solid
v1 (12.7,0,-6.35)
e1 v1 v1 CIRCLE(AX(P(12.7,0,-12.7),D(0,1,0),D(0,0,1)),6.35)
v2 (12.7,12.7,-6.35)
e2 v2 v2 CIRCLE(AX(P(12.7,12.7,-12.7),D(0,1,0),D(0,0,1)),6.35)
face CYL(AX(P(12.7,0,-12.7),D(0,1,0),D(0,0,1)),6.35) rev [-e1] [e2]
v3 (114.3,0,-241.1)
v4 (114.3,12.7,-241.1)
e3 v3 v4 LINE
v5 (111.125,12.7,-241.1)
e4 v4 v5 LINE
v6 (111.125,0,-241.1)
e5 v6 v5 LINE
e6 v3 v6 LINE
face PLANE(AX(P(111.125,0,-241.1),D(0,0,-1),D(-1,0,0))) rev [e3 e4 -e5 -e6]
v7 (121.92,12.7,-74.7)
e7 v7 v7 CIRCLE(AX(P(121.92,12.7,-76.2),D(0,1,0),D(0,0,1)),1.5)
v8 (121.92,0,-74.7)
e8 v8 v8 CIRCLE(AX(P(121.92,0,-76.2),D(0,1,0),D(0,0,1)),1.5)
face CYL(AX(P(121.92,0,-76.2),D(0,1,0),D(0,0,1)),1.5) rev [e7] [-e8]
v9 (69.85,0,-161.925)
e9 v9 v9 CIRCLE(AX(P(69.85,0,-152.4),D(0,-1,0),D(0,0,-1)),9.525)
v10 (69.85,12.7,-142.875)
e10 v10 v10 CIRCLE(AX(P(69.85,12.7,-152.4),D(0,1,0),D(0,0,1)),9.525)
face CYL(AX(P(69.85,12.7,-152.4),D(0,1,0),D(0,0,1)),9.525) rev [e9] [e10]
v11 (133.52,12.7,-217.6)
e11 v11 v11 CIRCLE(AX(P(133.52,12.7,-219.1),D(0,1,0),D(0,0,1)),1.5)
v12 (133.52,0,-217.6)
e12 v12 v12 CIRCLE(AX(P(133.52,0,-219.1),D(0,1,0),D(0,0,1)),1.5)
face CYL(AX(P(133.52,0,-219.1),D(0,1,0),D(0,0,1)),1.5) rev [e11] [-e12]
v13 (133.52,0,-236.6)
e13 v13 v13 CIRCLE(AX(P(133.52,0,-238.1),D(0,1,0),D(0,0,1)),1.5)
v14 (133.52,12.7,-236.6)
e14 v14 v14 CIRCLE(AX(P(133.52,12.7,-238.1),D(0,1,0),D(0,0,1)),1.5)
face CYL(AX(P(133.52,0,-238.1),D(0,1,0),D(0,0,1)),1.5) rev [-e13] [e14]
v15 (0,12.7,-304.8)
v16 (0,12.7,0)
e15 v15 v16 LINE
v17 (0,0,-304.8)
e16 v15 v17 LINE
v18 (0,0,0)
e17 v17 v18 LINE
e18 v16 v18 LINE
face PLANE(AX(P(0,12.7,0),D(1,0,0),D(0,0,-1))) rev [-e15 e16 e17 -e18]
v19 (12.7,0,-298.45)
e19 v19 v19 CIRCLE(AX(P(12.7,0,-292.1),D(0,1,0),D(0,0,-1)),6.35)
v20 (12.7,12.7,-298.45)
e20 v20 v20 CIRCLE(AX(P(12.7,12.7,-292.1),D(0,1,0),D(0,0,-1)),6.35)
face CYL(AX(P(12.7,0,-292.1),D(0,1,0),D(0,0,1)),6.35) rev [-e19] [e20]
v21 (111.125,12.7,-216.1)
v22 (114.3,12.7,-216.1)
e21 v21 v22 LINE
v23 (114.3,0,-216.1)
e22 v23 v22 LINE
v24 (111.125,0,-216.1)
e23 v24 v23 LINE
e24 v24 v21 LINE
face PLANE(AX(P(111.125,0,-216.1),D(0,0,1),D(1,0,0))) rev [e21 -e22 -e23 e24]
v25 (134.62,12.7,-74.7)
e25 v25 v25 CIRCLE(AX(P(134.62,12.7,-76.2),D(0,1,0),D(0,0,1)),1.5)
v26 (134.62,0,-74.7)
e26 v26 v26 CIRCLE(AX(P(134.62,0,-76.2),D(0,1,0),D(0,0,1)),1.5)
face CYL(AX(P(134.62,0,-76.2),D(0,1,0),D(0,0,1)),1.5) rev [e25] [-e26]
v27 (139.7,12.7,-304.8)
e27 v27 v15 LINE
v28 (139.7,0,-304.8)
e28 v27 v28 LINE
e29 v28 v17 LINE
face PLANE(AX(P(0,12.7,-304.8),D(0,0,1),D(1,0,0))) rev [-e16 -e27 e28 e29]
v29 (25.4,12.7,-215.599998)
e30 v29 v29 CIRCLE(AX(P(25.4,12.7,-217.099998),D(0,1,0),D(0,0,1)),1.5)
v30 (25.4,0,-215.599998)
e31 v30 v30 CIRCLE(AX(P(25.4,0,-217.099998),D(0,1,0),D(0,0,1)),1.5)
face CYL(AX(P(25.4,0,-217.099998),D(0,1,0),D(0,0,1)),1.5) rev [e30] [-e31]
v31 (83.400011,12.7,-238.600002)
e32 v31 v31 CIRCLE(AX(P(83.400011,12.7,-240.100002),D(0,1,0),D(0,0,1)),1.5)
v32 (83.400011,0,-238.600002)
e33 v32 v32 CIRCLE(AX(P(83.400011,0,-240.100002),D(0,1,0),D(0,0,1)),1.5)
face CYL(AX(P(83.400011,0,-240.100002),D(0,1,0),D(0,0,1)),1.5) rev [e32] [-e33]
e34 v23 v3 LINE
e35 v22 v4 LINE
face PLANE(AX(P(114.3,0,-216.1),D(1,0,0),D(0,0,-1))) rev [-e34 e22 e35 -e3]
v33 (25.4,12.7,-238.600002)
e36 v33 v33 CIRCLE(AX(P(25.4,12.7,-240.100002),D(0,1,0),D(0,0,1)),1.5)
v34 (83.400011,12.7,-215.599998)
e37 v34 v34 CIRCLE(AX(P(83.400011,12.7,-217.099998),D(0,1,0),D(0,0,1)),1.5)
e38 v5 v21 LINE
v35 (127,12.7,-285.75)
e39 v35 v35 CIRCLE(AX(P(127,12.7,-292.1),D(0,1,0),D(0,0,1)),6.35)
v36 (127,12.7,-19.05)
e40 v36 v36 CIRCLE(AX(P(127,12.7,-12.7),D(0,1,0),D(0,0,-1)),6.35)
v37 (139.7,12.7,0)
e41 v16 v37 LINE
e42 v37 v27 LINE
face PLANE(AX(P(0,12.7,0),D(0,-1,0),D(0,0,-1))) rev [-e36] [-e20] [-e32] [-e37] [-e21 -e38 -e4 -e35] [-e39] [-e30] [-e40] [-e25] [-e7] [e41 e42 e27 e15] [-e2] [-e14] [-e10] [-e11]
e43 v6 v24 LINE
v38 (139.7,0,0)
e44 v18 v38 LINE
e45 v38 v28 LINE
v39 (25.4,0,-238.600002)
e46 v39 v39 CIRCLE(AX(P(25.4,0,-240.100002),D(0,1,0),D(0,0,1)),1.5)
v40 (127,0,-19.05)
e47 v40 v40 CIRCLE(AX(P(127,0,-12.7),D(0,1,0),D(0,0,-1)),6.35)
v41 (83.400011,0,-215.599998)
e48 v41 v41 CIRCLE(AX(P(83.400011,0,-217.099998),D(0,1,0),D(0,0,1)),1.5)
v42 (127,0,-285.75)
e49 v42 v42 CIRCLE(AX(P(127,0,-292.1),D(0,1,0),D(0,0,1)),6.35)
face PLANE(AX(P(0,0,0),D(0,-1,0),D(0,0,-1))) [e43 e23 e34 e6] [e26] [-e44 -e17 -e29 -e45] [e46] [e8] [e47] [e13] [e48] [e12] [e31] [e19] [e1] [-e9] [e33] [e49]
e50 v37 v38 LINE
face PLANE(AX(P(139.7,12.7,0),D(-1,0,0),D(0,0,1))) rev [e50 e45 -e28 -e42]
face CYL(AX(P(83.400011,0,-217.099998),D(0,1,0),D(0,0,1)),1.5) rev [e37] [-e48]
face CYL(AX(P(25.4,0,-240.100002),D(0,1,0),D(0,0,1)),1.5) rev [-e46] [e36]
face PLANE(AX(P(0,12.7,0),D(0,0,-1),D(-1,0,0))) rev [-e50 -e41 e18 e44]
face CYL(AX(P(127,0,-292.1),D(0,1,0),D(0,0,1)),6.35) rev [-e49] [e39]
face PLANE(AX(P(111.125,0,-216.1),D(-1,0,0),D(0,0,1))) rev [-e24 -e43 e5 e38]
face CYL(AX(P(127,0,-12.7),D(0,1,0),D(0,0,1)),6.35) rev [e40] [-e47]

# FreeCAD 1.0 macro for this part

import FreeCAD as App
import Part
import Sketcher
from FreeCAD import Vector
Q = App.Units.Quantity

doc = App.newDocument("Part")
body = doc.addObject("PartDesign::Body", "Body")

sketch1 = doc.addObject("Sketcher::SketchObject", "Sketch")
body.addObject(sketch1)
sketch1.AttachmentSupport = (doc.XZ_Plane, [""])
sketch1.MapMode = "FlatFace"
sketch1.addGeometry([
    Part.LineSegment(Vector(0, -304.8, 0), Vector(0, 0, 0)),
    Part.LineSegment(Vector(0, 0, 0), Vector(139.7, 0, 0)),
    Part.LineSegment(Vector(139.7, 0, 0), Vector(139.7, -304.8, 0)),
    Part.LineSegment(Vector(139.7, -304.8, 0), Vector(0, -304.8, 0)),
], False)
sketch1.addConstraint([
    Sketcher.Constraint("Coincident", 0, 2, 1, 1),
    Sketcher.Constraint("Coincident", 1, 2, 2, 1),
    Sketcher.Constraint("Coincident", 2, 2, 3, 1),
    Sketcher.Constraint("Coincident", 3, 2, 0, 1),
    Sketcher.Constraint("Vertical", 0),
    Sketcher.Constraint("Horizontal", 1),
    Sketcher.Constraint("Vertical", 2),
    Sketcher.Constraint("Horizontal", 3),
    Sketcher.Constraint("Coincident", 0, 2, -1, 1),
    Sketcher.Constraint("DistanceY", 0, 1, 0, 2, Q("12 in")),
    Sketcher.Constraint("DistanceX", 1, 1, 1, 2, Q("5.5 in")),
])
pad1 = doc.addObject("PartDesign::Pad", "Pad")
body.addObject(pad1)
pad1.Profile = sketch1
pad1.Length = Q("0.5 in")
pad1.Reversed = True

sketch2 = doc.addObject("Sketcher::SketchObject", "Sketch001")
body.addObject(sketch2)
sketch2.AttachmentSupport = (doc.XZ_Plane, [""])
sketch2.MapMode = "FlatFace"
sketch2.AttachmentOffset = App.Placement(Vector(0, 0, -0.5 * 25.4), App.Rotation())
sketch2.addGeometry([
    Part.Circle(Vector(12.7, -12.7, 0), Vector(0, 0, 1), 6.35),
    Part.Circle(Vector(127, -12.7, 0), Vector(0, 0, 1), 6.35),
    Part.Circle(Vector(127, -292.1, 0), Vector(0, 0, 1), 6.35),
    Part.Circle(Vector(12.7, -292.1, 0), Vector(0, 0, 1), 6.35),
], False)
sketch2.addConstraint([
    Sketcher.Constraint("Equal", 0, 1),
    Sketcher.Constraint("Equal", 1, 2),
    Sketcher.Constraint("Equal", 2, 3),
    Sketcher.Constraint("Horizontal", 0, 3, 1, 3),
    Sketcher.Constraint("Horizontal", 2, 3, 3, 3),
    Sketcher.Constraint("Vertical", 1, 3, 2, 3),
    Sketcher.Constraint("Vertical", 0, 3, 3, 3),
    Sketcher.Constraint("Diameter", 0, Q("0.5 in")),
    Sketcher.Constraint("DistanceX", -1, 1, 1, 3, Q("5 in")),
    Sketcher.Constraint("DistanceY", 2, 3, 1, 3, Q("11 in")),
    Sketcher.Constraint("DistanceX", -1, 1, 0, 3, Q("0.5 in")),
    Sketcher.Constraint("DistanceY", 0, 3, -1, 1, Q("0.5 in")),
])
pocket1 = doc.addObject("PartDesign::Pocket", "Pocket")
body.addObject(pocket1)
pocket1.Profile = sketch2
pocket1.Type = "ThroughAll"
pocket1.Reversed = True

sketch3 = doc.addObject("Sketcher::SketchObject", "Sketch002")
body.addObject(sketch3)
sketch3.AttachmentSupport = (doc.XZ_Plane, [""])
sketch3.MapMode = "FlatFace"
sketch3.AttachmentOffset = App.Placement(Vector(0, 0, -0.5 * 25.4), App.Rotation())
sketch3.addGeometry(Part.Circle(Vector(69.85, -152.4, 0), Vector(0, 0, 1), 9.525), False)
sketch3.addConstraint([
    Sketcher.Constraint("Diameter", 0, Q("0.75 in")),
    Sketcher.Constraint("DistanceY", 0, 3, -1, 1, Q("6 in")),
    Sketcher.Constraint("DistanceX", -1, 1, 0, 3, Q("2.75 in")),
])
doc.recompute()
hole = doc.addObject("PartDesign::Hole", "Hole")
body.addObject(hole)
hole.Profile = sketch3
hole.ThreadType = "None"
hole.Diameter = Q("0.75 in")
hole.DepthType = "Dimension"
hole.Depth = Q("1 in")
hole.DrillPoint = "Angled"
hole.DrillPointAngle = 118
hole.Reversed = True

sketch4 = doc.addObject("Sketcher::SketchObject", "Sketch003")
body.addObject(sketch4)
sketch4.AttachmentSupport = (doc.XZ_Plane, [""])
sketch4.MapMode = "FlatFace"
sketch4.AttachmentOffset = App.Placement(Vector(0, 0, -0.5 * 25.4), App.Rotation())
sketch4.addGeometry([
    Part.Circle(Vector(25.4, -217.099998, 0), Vector(0, 0, 1), 1.5),
    Part.Circle(Vector(25.4, -240.100002, 0), Vector(0, 0, 1), 1.5),
    Part.Circle(Vector(83.400011, -240.100002, 0), Vector(0, 0, 1), 1.5),
    Part.Circle(Vector(83.400011, -217.099998, 0), Vector(0, 0, 1), 1.5),
], False)
sketch4.addConstraint([
    Sketcher.Constraint("Equal", 0, 1),
    Sketcher.Constraint("Equal", 1, 2),
    Sketcher.Constraint("Equal", 2, 3),
    Sketcher.Constraint("Horizontal", 1, 3, 2, 3),
    Sketcher.Constraint("Horizontal", 0, 3, 3, 3),
    Sketcher.Constraint("Vertical", 0, 3, 1, 3),
    Sketcher.Constraint("Vertical", 2, 3, 3, 3),
    Sketcher.Constraint("DistanceX", -1, 1, 0, 3, Q("1 in")),
    Sketcher.Constraint("Diameter", 0, Q("3 mm")),
    Sketcher.Constraint("DistanceX", -1, 1, 2, 3, Q("83.400011 mm")),
    Sketcher.Constraint("DistanceY", 0, 3, -1, 1, Q("217.099998 mm")),
    Sketcher.Constraint("DistanceY", 1, 3, -1, 1, Q("240.100002 mm")),
])
pocket2 = doc.addObject("PartDesign::Pocket", "Pocket001")
body.addObject(pocket2)
pocket2.Profile = sketch4
pocket2.Type = "ThroughAll"
pocket2.Reversed = True

sketch5 = doc.addObject("Sketcher::SketchObject", "Sketch004")
body.addObject(sketch5)
sketch5.AttachmentSupport = (doc.XZ_Plane, [""])
sketch5.MapMode = "FlatFace"
sketch5.AttachmentOffset = App.Placement(Vector(0, 0, -0.5 * 25.4), App.Rotation())
sketch5.addGeometry([
    Part.Circle(Vector(134.62, -76.2, 0), Vector(0, 0, 1), 1.5),
    Part.Circle(Vector(121.92, -76.2, 0), Vector(0, 0, 1), 1.5),
], False)
sketch5.addConstraint([
    Sketcher.Constraint("Equal", 0, 1),
    Sketcher.Constraint("Horizontal", 0, 3, 1, 3),
    Sketcher.Constraint("DistanceY", 0, 3, -1, 1, Q("3 in")),
    Sketcher.Constraint("DistanceX", -1, 1, 0, 3, Q("5.3 in")),
    Sketcher.Constraint("DistanceX", -1, 1, 1, 3, Q("4.8 in")),
    Sketcher.Constraint("Diameter", 0, Q("3 mm")),
])
pocket3 = doc.addObject("PartDesign::Pocket", "Pocket002")
body.addObject(pocket3)
pocket3.Profile = sketch5
pocket3.Type = "ThroughAll"
pocket3.Reversed = True

sketch6 = doc.addObject("Sketcher::SketchObject", "Sketch005")
body.addObject(sketch6)
sketch6.AttachmentSupport = (doc.XZ_Plane, [""])
sketch6.MapMode = "FlatFace"
sketch6.AttachmentOffset = App.Placement(Vector(0, 0, -0.5 * 25.4), App.Rotation())
sketch6.addGeometry([
    Part.Circle(Vector(133.52, -219.1, 0), Vector(0, 0, 1), 1.5),
    Part.Circle(Vector(133.52, -238.1, 0), Vector(0, 0, 1), 1.5),
    Part.LineSegment(Vector(111.125, -241.1, 0), Vector(111.125, -216.1, 0)),
    Part.LineSegment(Vector(111.125, -216.1, 0), Vector(114.3, -216.1, 0)),
    Part.LineSegment(Vector(114.3, -216.1, 0), Vector(114.3, -241.1, 0)),
    Part.LineSegment(Vector(114.3, -241.1, 0), Vector(111.125, -241.1, 0)),
], False)
sketch6.addConstraint([
    Sketcher.Constraint("Coincident", 2, 2, 3, 1),
    Sketcher.Constraint("Coincident", 3, 2, 4, 1),
    Sketcher.Constraint("Coincident", 4, 2, 5, 1),
    Sketcher.Constraint("Coincident", 5, 2, 2, 1),
    Sketcher.Constraint("Vertical", 2),
    Sketcher.Constraint("Horizontal", 3),
    Sketcher.Constraint("Vertical", 4),
    Sketcher.Constraint("Horizontal", 5),
    Sketcher.Constraint("Equal", 0, 1),
    Sketcher.Constraint("Vertical", 0, 3, 1, 3),
    Sketcher.Constraint("DistanceX", -1, 1, 3, 2, Q("4.5 in")),
    Sketcher.Constraint("Diameter", 0, Q("3 mm")),
    Sketcher.Constraint("DistanceX", 3, 1, 3, 2, Q("0.125 in")),
    Sketcher.Constraint("DistanceY", 2, 1, 2, 2, Q("25 mm")),
    Sketcher.Constraint("DistanceX", -1, 1, 0, 3, Q("133.52 mm")),
    Sketcher.Constraint("DistanceY", 0, 3, -1, 1, Q("219.1 mm")),
    Sketcher.Constraint("DistanceY", 1, 3, -1, 1, Q("238.1 mm")),
    Sketcher.Constraint("DistanceY", 2, 2, -1, 1, Q("216.1 mm")),
])
pocket4 = doc.addObject("PartDesign::Pocket", "Pocket003")
body.addObject(pocket4)
pocket4.Profile = sketch6
pocket4.Type = "ThroughAll"
pocket4.Reversed = True

doc.recompute()
